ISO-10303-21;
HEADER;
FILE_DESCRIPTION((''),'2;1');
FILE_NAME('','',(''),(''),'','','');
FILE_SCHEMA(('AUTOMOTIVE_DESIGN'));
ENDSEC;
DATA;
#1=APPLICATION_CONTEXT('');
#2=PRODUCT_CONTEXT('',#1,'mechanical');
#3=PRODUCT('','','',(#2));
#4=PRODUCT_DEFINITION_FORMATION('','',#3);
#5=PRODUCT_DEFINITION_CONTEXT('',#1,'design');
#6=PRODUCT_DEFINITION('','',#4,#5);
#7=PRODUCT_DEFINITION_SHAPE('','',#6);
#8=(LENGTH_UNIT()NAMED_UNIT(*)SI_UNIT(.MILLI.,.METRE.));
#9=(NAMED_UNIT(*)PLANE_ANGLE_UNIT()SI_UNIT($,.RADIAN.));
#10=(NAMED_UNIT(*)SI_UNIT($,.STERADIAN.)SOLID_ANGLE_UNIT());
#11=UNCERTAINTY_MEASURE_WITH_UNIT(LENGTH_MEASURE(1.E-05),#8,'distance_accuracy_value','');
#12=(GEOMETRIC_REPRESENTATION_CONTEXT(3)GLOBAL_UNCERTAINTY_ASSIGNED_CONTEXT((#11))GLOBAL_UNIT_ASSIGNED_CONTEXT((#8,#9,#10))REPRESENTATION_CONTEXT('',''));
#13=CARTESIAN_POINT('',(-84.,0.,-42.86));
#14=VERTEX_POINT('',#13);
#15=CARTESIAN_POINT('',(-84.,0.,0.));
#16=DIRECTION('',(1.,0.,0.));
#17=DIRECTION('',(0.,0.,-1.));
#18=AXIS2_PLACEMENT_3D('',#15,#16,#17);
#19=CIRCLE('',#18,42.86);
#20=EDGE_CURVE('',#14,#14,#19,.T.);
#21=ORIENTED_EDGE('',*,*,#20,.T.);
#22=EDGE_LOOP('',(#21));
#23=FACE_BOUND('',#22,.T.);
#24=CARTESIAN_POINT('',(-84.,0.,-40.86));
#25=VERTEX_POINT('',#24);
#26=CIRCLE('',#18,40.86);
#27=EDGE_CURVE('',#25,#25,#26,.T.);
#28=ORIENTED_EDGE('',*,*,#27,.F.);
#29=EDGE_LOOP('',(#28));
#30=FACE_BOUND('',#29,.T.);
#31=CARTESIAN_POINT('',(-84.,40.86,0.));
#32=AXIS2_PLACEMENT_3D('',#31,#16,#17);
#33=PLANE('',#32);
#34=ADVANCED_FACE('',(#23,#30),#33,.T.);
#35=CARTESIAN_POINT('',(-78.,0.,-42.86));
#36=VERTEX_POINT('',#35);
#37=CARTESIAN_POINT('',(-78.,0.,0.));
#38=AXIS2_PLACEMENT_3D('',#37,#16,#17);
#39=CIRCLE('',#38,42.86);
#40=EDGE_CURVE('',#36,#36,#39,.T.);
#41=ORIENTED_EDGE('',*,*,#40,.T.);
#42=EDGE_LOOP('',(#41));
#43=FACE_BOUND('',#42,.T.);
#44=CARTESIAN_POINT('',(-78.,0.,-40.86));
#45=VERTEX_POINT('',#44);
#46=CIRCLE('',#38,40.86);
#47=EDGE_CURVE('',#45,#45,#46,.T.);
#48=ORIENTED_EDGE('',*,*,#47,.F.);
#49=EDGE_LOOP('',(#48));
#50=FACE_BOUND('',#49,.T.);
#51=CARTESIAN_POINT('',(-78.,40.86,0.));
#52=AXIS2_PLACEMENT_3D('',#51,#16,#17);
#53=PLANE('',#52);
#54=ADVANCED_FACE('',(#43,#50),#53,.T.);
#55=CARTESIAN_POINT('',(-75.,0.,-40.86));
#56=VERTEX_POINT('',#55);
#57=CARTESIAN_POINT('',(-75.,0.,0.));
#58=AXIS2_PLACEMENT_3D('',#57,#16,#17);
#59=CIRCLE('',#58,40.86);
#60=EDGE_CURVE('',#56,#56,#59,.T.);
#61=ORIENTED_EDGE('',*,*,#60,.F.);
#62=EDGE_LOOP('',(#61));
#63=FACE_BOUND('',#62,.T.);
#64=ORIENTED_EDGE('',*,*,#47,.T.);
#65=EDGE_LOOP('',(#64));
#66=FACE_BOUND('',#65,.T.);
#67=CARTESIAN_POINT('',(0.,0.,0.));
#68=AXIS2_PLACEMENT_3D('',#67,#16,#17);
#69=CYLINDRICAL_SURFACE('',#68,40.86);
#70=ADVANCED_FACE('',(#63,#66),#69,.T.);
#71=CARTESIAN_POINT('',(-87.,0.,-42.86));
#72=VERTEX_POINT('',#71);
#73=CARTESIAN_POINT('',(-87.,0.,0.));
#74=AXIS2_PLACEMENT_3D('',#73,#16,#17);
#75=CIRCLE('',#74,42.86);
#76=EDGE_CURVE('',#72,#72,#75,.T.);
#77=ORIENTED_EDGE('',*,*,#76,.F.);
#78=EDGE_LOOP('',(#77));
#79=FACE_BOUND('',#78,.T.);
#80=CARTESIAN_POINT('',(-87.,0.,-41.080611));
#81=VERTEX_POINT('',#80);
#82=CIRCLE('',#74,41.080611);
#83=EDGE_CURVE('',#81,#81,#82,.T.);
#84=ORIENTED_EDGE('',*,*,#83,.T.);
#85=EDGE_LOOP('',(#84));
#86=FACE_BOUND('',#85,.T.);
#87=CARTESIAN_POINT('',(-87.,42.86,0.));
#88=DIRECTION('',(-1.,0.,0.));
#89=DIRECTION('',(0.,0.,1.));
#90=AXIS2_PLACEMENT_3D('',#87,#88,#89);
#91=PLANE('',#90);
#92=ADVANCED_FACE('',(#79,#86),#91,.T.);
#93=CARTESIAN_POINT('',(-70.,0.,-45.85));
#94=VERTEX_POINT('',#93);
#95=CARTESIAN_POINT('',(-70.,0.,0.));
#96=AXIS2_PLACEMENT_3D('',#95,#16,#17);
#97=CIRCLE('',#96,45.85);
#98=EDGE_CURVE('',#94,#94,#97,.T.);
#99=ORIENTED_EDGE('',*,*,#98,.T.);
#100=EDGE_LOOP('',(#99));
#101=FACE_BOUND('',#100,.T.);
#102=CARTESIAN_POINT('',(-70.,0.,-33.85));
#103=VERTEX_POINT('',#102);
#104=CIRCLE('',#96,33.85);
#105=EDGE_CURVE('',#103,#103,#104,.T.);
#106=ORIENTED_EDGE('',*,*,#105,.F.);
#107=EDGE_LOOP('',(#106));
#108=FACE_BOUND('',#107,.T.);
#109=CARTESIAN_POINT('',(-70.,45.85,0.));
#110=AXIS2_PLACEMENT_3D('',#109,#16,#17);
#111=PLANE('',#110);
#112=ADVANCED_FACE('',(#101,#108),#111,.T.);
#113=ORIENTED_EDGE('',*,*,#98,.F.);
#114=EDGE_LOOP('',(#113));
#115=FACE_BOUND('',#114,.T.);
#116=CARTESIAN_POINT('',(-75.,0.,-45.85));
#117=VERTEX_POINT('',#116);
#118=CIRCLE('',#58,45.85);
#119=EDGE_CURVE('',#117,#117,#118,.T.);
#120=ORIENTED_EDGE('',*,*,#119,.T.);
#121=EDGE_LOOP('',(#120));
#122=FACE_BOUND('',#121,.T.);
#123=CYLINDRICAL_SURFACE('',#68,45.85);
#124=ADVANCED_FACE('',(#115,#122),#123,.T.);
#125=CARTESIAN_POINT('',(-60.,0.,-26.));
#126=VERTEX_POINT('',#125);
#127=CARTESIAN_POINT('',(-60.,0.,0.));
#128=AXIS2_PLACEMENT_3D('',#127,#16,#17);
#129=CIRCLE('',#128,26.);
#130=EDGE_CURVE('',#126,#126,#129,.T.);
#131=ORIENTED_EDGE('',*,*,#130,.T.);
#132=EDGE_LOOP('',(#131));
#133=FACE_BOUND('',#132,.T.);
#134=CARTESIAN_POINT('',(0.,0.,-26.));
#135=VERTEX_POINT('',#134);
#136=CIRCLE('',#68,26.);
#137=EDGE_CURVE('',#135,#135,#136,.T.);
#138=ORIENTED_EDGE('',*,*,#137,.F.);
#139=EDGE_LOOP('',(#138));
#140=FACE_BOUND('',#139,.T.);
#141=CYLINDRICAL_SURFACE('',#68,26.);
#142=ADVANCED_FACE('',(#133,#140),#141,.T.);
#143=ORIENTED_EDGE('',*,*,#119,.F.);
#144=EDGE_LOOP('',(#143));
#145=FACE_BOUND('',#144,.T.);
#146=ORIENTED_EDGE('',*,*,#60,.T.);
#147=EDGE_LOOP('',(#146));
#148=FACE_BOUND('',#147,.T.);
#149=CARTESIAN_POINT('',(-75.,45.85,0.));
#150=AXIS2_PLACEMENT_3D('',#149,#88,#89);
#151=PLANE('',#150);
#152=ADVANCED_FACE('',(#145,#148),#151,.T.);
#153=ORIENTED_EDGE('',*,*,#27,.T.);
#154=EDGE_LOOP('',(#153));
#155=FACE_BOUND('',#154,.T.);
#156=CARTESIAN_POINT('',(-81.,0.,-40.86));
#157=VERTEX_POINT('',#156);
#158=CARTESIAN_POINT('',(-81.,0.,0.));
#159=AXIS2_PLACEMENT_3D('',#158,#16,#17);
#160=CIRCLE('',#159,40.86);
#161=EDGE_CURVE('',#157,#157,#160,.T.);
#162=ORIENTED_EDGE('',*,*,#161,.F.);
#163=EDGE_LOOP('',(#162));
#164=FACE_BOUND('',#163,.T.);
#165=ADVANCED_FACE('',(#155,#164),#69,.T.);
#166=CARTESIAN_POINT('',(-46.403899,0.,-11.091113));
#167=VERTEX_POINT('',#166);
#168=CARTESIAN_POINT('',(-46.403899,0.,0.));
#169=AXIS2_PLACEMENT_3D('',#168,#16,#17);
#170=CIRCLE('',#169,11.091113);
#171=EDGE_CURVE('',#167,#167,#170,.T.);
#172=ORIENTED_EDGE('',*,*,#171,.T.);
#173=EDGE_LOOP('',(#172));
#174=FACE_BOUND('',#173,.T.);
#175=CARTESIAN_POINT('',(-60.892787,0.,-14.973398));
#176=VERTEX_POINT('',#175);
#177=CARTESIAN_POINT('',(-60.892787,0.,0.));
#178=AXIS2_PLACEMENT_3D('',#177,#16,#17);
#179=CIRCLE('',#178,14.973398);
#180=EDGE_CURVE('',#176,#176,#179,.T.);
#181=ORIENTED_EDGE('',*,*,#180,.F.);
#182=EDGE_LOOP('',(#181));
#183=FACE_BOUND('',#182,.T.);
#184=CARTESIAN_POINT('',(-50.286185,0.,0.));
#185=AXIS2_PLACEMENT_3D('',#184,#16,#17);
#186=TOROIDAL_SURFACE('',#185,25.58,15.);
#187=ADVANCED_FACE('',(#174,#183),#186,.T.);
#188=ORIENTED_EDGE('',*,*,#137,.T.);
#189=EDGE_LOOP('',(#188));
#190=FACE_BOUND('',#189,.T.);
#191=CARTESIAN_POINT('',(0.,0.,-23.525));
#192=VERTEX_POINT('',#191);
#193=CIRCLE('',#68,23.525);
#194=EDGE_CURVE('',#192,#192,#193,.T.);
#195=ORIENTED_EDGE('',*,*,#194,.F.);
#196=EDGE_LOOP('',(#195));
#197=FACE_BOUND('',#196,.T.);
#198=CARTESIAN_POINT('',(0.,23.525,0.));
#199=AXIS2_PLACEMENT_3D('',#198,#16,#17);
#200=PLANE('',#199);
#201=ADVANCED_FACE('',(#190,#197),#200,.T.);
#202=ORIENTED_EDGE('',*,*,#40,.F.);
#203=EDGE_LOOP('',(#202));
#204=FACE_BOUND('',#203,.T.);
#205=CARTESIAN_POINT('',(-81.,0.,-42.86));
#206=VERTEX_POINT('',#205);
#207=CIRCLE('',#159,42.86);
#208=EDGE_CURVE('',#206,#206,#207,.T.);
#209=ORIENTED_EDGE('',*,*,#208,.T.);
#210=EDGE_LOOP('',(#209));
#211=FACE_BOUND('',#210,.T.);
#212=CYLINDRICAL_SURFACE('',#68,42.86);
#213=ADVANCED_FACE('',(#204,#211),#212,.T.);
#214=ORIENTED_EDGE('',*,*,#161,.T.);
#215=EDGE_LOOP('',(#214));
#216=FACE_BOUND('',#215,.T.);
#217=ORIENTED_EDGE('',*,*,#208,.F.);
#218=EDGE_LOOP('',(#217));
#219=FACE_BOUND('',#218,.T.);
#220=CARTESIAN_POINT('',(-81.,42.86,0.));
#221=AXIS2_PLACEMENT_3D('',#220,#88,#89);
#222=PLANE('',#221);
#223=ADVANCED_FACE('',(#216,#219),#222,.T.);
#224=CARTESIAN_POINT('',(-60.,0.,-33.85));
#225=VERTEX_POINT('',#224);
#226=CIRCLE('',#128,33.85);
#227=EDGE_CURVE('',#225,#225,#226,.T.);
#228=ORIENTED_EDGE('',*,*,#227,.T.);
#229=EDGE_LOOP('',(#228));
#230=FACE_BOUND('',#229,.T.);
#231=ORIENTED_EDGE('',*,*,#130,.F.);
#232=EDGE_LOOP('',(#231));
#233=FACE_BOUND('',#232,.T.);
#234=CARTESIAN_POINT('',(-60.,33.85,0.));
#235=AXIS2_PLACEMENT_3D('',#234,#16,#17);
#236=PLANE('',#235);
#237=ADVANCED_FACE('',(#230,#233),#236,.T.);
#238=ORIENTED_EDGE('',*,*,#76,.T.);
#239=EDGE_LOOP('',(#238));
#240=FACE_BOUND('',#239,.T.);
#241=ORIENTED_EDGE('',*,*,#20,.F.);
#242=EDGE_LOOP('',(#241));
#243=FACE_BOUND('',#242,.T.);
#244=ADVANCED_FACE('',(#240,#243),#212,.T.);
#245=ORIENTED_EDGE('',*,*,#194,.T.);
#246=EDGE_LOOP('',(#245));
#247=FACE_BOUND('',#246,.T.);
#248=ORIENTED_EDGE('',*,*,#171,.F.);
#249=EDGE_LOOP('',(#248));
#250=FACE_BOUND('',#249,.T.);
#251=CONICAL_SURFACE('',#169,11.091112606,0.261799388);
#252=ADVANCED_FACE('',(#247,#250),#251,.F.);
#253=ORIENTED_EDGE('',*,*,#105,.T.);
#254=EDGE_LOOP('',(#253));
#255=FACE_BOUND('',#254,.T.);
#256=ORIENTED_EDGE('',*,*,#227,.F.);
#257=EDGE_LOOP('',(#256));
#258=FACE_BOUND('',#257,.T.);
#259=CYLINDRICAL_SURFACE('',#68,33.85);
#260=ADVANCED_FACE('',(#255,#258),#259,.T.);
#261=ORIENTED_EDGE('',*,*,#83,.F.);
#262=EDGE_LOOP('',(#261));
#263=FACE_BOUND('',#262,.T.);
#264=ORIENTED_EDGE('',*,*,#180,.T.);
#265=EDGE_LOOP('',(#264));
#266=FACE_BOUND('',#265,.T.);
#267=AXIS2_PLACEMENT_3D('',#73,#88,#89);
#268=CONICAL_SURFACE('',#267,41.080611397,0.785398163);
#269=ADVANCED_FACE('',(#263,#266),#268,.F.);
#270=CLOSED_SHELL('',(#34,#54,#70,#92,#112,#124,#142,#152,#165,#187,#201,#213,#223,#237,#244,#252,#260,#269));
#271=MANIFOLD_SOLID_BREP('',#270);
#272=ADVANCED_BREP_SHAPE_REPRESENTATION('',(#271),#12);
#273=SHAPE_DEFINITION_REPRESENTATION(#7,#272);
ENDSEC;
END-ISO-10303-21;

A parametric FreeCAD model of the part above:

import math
import FreeCAD as App
import Part
import Sketcher
Q = App.Units.Quantity

doc = App.newDocument("Part")
body = doc.addObject("PartDesign::Body", "Body")

# Sketch on XY plane
sketch1 = body.newObject("Sketcher::SketchObject", "Sketch")
sketch1.AttachmentSupport = (doc.getObject("XY_Plane"), [""])
sketch1.MapMode = "FlatFace"
sketch1.addGeometry([
    Part.LineSegment(App.Vector(-87, 41.1, 0), App.Vector(-60.9, 15, 0)),  # 0
    Part.ArcOfCircle(Part.Circle(App.Vector(-50.3, 25.6, 0), App.Vector(0, 0, 1), 15), math.radians(-135), math.radians(-75)),  # 1
    Part.LineSegment(App.Vector(-46.4, 11.1, 0), App.Vector(0, 23.5, 0)),  # 2
    Part.LineSegment(App.Vector(0, 23.5, 0), App.Vector(0, 26, 0)),  # 3
    Part.LineSegment(App.Vector(0, 26, 0), App.Vector(-60, 26, 0)),  # 4
    Part.LineSegment(App.Vector(-60, 26, 0), App.Vector(-60, 33.9, 0)),  # 5
    Part.LineSegment(App.Vector(-60, 33.9, 0), App.Vector(-70, 33.9, 0)),  # 6
    Part.LineSegment(App.Vector(-70, 33.9, 0), App.Vector(-70, 45.9, 0)),  # 7
    Part.LineSegment(App.Vector(-70, 45.9, 0), App.Vector(-75, 45.9, 0)),  # 8
    Part.LineSegment(App.Vector(-75, 45.9, 0), App.Vector(-75, 40.9, 0)),  # 9
    Part.LineSegment(App.Vector(-75, 40.9, 0), App.Vector(-78, 40.9, 0)),  # 10
    Part.LineSegment(App.Vector(-78, 40.9, 0), App.Vector(-78, 42.9, 0)),  # 11
    Part.LineSegment(App.Vector(-78, 42.9, 0), App.Vector(-81, 42.9, 0)),  # 12
    Part.LineSegment(App.Vector(-81, 42.9, 0), App.Vector(-81, 40.9, 0)),  # 13
    Part.LineSegment(App.Vector(-81, 40.9, 0), App.Vector(-84, 40.9, 0)),  # 14
    Part.LineSegment(App.Vector(-84, 40.9, 0), App.Vector(-84, 42.9, 0)),  # 15
    Part.LineSegment(App.Vector(-84, 42.9, 0), App.Vector(-87, 42.9, 0)),  # 16
    Part.LineSegment(App.Vector(-87, 42.9, 0), App.Vector(-87, 41.1, 0)),  # 17
], False)
sketch1.addConstraint([
    Sketcher.Constraint("Tangent", 0, 2, 1, 1),
    Sketcher.Constraint("Tangent", 1, 2, 2, 1),
    Sketcher.Constraint("Coincident", 2, 2, 3, 1),
    Sketcher.Constraint("Coincident", 3, 2, 4, 1),
    Sketcher.Constraint("Coincident", 4, 2, 5, 1),
    Sketcher.Constraint("Coincident", 5, 2, 6, 1),
    Sketcher.Constraint("Coincident", 6, 2, 7, 1),
    Sketcher.Constraint("Coincident", 7, 2, 8, 1),
    Sketcher.Constraint("Coincident", 8, 2, 9, 1),
    Sketcher.Constraint("Coincident", 9, 2, 10, 1),
    Sketcher.Constraint("Coincident", 10, 2, 11, 1),
    Sketcher.Constraint("Coincident", 11, 2, 12, 1),
    Sketcher.Constraint("Coincident", 12, 2, 13, 1),
    Sketcher.Constraint("Coincident", 13, 2, 14, 1),
    Sketcher.Constraint("Coincident", 14, 2, 15, 1),
    Sketcher.Constraint("Coincident", 15, 2, 16, 1),
    Sketcher.Constraint("Coincident", 16, 2, 17, 1),
    Sketcher.Constraint("Coincident", 17, 2, 0, 1),
    Sketcher.Constraint("Vertical", 3),
    Sketcher.Constraint("Horizontal", 4),
    Sketcher.Constraint("Vertical", 5),
    Sketcher.Constraint("Horizontal", 6),
    Sketcher.Constraint("Vertical", 7),
    Sketcher.Constraint("Horizontal", 8),
    Sketcher.Constraint("Vertical", 9),
    Sketcher.Constraint("Horizontal", 10),
    Sketcher.Constraint("Vertical", 11),
    Sketcher.Constraint("Horizontal", 12),
    Sketcher.Constraint("Vertical", 13),
    Sketcher.Constraint("Horizontal", 14),
    Sketcher.Constraint("Vertical", 15),
    Sketcher.Constraint("Horizontal", 16),
    Sketcher.Constraint("Vertical", 17),
    Sketcher.Constraint("PointOnObject", 2, 2, -2),
    Sketcher.Constraint("Horizontal", 10, 2, 13, 2),
    Sketcher.Constraint("Horizontal", 12, 2, 15, 2),
    Sketcher.Constraint("Equal", 10, 12),
    Sketcher.Constraint("Equal", 12, 14),
    Sketcher.Constraint("Equal", 14, 16),
    Sketcher.Constraint("Radius", 1, Q("15 mm")),
    Sketcher.Constraint("DistanceX", 4, 2, 4, 1, Q("60 mm")),
    Sketcher.Constraint("DistanceX", 6, 2, 6, 1, Q("10 mm")),
    Sketcher.Constraint("DistanceX", 8, 2, 8, 1, Q("5 mm")),
    Sketcher.Constraint("DistanceX", 10, 2, 10, 1, Q("3 mm")),
    Sketcher.Constraint("DistanceY", 7, 1, 7, 2, Q("12 mm")),
    Sketcher.Constraint("DistanceY", 11, 1, 11, 2, Q("2 mm")),
    Sketcher.Constraint("Angle", 0, Q("-45 deg")),
    Sketcher.Constraint("Angle", 2, Q("15 deg")),
    Sketcher.Constraint("DistanceY", -1, 1, 3, 2, Q("26 mm")),
    Sketcher.Constraint("DistanceY", 5, 1, 5, 2, Q("7.85 mm")),
    Sketcher.Constraint("DistanceY", 9, 2, 9, 1, Q("4.99 mm")),
    Sketcher.Constraint("DistanceY", 3, 1, 3, 2, Q("2.475 mm")),
    Sketcher.Constraint("DistanceY", -1, 1, 1, 3, Q("25.58 mm")),
])
revolution = body.newObject("PartDesign::Revolution", "Revolution")
revolution.Profile = sketch1
revolution.ReferenceAxis = (sketch1, ["H_Axis"])
revolution.Angle = 360

doc.recompute()
